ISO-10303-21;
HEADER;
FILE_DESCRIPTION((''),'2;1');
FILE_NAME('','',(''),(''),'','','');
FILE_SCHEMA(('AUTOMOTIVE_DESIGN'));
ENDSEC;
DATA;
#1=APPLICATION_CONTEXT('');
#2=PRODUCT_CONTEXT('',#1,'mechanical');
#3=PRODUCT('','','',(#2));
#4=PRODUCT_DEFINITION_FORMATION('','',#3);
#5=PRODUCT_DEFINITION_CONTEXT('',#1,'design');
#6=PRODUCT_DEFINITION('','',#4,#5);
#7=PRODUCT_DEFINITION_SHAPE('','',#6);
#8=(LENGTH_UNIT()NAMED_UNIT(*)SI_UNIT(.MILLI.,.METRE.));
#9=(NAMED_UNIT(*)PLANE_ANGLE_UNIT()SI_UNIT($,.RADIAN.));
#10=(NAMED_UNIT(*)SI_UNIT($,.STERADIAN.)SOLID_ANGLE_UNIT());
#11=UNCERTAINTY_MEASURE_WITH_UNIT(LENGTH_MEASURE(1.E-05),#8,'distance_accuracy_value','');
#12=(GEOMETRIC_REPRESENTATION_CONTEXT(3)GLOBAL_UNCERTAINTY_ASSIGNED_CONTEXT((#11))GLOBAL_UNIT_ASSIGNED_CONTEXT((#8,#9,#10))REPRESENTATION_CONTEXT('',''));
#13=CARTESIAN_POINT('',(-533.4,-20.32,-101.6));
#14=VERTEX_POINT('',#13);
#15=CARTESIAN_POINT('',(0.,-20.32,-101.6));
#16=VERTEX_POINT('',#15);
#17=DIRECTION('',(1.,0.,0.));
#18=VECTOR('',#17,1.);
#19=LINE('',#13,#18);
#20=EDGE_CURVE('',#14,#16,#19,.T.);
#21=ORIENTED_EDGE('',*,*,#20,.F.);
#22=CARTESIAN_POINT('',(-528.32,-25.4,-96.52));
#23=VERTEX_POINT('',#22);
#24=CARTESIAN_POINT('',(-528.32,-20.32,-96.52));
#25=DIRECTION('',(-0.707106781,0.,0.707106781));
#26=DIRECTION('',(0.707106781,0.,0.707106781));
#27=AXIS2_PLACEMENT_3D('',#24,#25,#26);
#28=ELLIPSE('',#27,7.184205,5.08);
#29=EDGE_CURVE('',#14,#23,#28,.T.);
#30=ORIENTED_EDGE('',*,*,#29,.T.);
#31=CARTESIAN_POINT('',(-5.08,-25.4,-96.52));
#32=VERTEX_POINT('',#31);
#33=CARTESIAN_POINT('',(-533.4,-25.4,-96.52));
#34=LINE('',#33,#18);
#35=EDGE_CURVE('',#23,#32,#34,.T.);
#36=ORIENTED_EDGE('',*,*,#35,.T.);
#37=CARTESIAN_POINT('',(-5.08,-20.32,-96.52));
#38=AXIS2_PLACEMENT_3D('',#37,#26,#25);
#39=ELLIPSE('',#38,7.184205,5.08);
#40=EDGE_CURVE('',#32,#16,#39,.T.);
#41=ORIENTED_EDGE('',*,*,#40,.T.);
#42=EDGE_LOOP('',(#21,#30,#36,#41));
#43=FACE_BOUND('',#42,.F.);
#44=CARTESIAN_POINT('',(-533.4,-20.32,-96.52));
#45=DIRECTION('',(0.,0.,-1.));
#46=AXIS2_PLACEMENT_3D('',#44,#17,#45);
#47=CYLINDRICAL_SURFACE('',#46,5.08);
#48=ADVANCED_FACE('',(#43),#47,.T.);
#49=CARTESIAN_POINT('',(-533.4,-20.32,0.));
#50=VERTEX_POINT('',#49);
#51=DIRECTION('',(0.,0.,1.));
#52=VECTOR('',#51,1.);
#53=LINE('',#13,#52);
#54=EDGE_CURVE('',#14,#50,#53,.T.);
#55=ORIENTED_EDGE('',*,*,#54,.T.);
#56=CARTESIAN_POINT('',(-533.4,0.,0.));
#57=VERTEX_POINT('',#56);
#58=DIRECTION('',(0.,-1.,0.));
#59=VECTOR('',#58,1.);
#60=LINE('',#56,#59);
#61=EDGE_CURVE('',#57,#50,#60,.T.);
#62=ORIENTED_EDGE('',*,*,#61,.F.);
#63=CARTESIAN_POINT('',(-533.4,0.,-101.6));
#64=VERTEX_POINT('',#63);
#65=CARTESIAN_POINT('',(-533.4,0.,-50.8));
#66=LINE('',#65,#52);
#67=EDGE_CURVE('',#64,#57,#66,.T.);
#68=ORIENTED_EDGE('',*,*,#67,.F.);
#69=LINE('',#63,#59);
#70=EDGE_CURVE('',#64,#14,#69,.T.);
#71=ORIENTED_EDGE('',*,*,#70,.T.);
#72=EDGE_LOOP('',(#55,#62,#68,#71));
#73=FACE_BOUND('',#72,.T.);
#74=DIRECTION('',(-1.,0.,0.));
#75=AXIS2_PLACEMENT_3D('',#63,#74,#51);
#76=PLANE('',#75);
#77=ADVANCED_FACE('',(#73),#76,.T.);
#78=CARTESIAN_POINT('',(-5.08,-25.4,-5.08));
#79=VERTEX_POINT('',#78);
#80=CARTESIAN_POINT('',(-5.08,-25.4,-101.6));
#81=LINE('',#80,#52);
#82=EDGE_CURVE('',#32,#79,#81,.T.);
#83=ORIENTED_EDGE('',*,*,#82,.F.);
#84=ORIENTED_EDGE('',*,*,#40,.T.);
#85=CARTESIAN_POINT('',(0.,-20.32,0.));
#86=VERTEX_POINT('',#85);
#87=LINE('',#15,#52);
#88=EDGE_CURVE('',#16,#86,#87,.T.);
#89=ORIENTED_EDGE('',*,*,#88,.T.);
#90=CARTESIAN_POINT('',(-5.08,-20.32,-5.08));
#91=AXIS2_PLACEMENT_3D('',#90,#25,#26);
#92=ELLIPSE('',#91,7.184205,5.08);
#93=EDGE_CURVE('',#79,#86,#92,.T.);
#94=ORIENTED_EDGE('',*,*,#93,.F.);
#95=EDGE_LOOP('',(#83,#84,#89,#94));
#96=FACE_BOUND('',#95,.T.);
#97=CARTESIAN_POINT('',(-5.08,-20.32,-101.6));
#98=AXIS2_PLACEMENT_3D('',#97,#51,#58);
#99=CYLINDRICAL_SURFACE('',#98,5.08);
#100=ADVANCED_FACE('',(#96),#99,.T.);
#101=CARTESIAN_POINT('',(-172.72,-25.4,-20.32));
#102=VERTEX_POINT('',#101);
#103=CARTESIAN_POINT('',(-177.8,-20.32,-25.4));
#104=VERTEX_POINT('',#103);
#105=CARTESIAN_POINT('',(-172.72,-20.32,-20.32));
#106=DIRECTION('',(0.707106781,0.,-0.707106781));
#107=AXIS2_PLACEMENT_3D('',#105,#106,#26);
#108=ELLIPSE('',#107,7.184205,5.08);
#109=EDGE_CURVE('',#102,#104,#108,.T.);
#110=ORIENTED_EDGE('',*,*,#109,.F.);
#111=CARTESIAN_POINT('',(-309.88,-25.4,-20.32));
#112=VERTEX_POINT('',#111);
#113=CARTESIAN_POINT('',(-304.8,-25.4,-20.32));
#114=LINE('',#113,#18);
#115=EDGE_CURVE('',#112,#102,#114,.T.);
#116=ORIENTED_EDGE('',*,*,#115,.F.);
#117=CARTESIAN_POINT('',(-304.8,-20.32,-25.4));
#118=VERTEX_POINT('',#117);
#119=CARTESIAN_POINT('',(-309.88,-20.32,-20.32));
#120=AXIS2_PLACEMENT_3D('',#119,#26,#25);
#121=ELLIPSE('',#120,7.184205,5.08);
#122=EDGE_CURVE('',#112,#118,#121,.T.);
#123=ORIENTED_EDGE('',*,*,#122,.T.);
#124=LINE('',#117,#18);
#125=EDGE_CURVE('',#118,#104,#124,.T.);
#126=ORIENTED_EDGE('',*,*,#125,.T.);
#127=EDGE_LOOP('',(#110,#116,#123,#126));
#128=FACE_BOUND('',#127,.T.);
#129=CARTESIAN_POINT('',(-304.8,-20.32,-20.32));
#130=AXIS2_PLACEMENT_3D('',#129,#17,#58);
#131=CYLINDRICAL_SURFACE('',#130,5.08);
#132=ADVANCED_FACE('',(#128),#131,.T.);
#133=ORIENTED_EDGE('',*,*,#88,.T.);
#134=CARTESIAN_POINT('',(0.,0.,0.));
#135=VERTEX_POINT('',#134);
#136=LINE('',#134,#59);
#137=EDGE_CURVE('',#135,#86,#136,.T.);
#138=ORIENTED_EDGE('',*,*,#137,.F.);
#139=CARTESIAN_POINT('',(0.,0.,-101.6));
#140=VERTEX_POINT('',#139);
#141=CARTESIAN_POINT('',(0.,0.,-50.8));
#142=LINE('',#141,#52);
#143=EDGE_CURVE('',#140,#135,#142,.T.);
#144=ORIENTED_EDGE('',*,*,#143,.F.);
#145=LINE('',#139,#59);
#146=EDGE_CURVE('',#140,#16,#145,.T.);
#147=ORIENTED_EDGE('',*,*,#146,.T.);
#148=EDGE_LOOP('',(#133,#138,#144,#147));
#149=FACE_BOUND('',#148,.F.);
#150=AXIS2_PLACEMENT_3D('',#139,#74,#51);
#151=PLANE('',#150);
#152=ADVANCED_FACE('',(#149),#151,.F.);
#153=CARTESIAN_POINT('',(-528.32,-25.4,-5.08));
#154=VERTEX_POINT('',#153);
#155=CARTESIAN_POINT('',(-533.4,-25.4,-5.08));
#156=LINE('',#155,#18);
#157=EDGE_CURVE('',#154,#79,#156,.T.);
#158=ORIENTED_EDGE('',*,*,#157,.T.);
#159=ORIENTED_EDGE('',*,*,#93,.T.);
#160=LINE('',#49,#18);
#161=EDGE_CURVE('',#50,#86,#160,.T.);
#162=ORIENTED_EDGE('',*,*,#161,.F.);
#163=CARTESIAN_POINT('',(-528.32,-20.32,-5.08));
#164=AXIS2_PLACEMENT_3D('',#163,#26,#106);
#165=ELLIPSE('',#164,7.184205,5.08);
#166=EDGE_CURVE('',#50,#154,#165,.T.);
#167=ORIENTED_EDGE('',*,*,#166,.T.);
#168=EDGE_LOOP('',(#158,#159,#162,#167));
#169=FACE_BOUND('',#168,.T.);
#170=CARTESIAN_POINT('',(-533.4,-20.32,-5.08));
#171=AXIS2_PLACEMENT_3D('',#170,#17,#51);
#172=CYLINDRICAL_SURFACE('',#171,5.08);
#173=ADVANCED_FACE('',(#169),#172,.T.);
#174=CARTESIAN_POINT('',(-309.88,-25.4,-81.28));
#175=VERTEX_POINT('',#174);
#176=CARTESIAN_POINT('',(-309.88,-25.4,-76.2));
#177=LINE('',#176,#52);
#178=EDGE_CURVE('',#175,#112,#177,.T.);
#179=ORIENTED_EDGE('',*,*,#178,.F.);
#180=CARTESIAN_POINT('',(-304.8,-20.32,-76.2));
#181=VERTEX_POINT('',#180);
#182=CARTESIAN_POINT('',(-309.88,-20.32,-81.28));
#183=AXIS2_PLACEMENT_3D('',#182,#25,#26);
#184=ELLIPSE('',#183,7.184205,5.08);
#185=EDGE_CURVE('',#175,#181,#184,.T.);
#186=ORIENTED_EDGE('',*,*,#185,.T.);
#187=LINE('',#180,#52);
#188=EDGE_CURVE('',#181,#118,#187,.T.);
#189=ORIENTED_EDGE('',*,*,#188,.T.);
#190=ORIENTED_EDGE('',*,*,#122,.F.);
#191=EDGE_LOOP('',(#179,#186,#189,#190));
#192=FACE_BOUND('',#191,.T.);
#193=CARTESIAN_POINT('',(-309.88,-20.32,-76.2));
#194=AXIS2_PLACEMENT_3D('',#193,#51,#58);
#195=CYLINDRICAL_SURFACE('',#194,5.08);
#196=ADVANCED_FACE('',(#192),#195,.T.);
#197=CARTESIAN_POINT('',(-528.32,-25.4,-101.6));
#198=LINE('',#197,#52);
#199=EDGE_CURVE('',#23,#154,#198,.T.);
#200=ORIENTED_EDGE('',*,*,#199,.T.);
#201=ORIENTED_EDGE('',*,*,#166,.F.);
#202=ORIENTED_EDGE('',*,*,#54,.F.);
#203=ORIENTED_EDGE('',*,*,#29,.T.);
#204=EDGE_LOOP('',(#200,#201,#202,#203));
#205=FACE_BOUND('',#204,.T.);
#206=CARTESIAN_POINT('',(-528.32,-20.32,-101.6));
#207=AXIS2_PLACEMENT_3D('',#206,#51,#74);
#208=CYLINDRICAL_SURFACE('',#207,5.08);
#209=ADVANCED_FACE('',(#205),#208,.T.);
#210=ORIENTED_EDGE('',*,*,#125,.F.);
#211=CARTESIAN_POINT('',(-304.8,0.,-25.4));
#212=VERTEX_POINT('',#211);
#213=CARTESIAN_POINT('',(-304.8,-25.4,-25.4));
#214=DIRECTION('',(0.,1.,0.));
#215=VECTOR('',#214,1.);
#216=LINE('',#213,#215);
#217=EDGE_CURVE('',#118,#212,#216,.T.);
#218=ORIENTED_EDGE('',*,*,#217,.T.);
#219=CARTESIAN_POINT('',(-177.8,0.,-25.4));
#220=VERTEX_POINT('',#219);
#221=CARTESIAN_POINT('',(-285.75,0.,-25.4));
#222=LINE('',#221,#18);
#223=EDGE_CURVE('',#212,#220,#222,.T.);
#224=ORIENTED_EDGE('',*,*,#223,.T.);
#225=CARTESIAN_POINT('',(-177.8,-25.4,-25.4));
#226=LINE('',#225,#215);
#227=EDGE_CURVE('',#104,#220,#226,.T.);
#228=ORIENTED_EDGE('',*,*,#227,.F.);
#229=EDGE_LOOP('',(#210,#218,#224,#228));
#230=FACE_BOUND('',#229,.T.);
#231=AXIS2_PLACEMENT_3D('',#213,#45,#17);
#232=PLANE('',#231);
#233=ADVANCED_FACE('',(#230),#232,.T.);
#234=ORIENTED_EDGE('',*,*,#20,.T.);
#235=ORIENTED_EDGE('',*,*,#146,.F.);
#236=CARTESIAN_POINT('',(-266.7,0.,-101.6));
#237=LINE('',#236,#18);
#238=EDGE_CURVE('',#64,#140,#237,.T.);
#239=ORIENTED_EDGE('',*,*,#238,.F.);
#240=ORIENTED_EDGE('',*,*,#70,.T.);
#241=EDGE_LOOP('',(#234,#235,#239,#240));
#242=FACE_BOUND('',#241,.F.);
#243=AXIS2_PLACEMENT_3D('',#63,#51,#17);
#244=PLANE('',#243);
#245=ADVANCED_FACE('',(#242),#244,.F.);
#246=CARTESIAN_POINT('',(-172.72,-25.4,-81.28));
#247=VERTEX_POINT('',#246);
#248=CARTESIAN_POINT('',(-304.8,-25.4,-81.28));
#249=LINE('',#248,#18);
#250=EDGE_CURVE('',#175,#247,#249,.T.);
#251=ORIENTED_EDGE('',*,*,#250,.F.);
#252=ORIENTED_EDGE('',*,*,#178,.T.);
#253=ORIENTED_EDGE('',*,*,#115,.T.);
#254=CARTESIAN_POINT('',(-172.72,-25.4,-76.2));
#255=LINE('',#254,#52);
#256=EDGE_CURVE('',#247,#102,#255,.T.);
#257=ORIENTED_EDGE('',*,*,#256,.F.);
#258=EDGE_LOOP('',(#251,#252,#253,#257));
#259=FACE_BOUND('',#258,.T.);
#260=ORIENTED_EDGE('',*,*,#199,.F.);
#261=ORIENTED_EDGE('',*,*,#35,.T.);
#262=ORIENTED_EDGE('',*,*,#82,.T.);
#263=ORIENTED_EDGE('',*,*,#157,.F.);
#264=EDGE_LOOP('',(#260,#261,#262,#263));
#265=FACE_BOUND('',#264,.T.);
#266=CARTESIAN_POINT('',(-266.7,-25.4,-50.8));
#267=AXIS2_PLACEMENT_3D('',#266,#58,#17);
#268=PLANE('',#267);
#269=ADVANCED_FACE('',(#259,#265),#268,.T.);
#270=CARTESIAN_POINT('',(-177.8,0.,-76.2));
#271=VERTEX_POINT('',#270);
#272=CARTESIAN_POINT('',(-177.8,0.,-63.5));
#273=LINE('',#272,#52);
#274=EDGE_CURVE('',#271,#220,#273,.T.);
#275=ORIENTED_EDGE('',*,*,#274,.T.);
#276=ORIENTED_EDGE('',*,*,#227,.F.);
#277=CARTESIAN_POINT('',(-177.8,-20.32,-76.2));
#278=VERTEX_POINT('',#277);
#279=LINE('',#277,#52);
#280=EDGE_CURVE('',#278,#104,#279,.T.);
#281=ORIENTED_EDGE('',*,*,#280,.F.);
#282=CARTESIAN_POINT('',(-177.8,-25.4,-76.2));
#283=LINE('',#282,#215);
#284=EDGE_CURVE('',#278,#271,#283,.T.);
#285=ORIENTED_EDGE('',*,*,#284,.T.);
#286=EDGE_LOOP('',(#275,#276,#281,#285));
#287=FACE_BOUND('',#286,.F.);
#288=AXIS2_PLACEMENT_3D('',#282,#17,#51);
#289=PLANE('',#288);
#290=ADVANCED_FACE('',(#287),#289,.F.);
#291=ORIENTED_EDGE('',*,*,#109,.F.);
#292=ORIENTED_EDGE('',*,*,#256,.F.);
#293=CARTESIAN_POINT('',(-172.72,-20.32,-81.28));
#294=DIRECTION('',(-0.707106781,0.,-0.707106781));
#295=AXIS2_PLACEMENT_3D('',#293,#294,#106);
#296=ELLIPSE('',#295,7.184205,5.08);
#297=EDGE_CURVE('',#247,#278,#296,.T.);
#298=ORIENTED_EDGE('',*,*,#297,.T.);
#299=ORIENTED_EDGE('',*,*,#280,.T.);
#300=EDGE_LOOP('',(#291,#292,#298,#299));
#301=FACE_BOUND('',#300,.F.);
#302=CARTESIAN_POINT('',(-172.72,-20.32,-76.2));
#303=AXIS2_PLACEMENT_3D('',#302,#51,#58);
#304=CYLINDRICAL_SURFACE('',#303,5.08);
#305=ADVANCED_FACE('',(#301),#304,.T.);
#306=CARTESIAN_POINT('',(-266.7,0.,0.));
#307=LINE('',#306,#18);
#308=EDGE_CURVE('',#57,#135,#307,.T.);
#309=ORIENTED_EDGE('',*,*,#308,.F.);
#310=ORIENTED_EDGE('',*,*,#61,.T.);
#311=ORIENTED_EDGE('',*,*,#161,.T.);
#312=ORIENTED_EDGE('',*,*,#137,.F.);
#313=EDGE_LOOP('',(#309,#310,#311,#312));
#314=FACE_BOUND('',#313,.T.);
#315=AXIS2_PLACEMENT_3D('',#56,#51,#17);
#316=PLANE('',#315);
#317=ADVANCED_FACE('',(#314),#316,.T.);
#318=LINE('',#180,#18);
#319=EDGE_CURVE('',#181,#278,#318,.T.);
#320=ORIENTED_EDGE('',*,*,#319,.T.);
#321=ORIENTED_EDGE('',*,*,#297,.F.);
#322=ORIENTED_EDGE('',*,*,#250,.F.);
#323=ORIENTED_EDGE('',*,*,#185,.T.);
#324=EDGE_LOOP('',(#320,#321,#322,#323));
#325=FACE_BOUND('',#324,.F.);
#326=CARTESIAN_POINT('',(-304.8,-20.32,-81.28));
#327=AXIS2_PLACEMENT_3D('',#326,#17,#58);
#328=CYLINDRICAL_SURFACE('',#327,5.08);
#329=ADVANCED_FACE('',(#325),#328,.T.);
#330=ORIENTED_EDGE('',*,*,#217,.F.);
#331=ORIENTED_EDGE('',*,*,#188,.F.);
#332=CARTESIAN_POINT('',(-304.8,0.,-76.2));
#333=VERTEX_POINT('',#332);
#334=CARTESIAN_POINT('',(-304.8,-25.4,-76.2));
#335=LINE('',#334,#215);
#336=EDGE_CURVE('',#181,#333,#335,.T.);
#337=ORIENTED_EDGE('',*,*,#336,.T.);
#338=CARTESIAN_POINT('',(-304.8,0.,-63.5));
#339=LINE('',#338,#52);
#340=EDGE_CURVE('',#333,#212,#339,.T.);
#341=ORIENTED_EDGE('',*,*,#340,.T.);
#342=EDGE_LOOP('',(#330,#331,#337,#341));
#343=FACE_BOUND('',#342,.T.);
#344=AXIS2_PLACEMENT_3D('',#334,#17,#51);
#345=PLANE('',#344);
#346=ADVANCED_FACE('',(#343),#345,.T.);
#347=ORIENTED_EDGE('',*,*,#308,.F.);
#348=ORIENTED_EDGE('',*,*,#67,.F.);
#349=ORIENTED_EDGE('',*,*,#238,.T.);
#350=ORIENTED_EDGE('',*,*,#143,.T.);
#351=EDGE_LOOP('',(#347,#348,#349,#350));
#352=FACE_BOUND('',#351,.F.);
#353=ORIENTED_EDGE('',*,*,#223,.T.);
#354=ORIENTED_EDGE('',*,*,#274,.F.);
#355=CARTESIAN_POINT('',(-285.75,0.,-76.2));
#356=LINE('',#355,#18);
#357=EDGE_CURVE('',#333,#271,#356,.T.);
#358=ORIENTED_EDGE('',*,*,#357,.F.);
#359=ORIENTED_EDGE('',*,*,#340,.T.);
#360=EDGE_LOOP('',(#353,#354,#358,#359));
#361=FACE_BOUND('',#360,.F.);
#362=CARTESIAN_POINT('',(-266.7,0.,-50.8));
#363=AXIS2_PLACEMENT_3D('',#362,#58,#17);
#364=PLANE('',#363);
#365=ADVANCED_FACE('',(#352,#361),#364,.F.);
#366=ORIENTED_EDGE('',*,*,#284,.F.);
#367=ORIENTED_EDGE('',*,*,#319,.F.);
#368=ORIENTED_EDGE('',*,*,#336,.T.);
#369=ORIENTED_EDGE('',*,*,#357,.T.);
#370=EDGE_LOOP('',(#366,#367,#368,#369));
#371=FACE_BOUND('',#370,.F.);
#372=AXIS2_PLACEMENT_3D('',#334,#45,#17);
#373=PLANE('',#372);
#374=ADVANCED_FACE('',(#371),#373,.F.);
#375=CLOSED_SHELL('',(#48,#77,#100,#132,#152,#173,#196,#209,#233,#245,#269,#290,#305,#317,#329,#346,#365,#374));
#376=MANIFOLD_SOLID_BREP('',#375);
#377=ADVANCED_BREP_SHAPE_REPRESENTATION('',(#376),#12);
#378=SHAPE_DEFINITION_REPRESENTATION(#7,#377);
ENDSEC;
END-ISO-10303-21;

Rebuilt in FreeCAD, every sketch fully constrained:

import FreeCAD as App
import Part
import Sketcher
Q = App.Units.Quantity


def edges_at(feature, points):
    """Names of the edges that pass closest to the given points."""
    edges = feature.Shape.Edges
    near = lambda p: min(range(len(edges)), key=lambda i: edges[i].distToShape(Part.Vertex(*p))[0])
    return sorted({f"Edge{near(p) + 1}" for p in points})

doc = App.newDocument("Part")
params = doc.addObject("Spreadsheet::Sheet", "Params")
for row, (alias, value) in enumerate([
    ("sketch1_width", "21 in"),
    ("sketch1_height", "4 in"),
    ("pad1_length", "1 in"),
    ("sketch2_width", "5 in"),
    ("sketch2_height", "2 in"),
    ("pocket1_length", "2 in"),
    ("fillet_radius", "0.2 in"),
], start=1):
    params.set(f"A{row}", alias)
    params.set(f"B{row}", "=" + value)
    params.setAlias(f"B{row}", alias)

body = doc.addObject("PartDesign::Body", "Body")

sketch1 = body.newObject("Sketcher::SketchObject", "Sketch")
sketch1.AttachmentSupport = (doc.getObject("XZ_Plane"), [""])
sketch1.MapMode = "FlatFace"
sketch1.addGeometry([
    Part.LineSegment(App.Vector(-533, 0, 0), App.Vector(-533, -102, 0)),
    Part.LineSegment(App.Vector(-533, -102, 0), App.Vector(0, -102, 0)),
    Part.LineSegment(App.Vector(0, -102, 0), App.Vector(0, 0, 0)),
    Part.LineSegment(App.Vector(0, 0, 0), App.Vector(-533, 0, 0)),
], False)
sketch1.addConstraint([
    Sketcher.Constraint("Coincident", 0, 2, 1, 1),
    Sketcher.Constraint("Coincident", 1, 2, 2, 1),
    Sketcher.Constraint("Coincident", 2, 2, 3, 1),
    Sketcher.Constraint("Coincident", 3, 2, 0, 1),
    Sketcher.Constraint("Vertical", 0),
    Sketcher.Constraint("Horizontal", 1),
    Sketcher.Constraint("Vertical", 2),
    Sketcher.Constraint("Horizontal", 3),
    Sketcher.Constraint("Coincident", 2, 2, -1, 1),
    Sketcher.Constraint("DistanceX", 1, 1, 1, 2, Q("21 in")),
    Sketcher.Constraint("DistanceY", 0, 2, 0, 1, Q("4 in")),
])
sketch1.setExpression("Constraints[9]", "Params.sketch1_width")
sketch1.setExpression("Constraints[10]", "Params.sketch1_height")
pad1 = body.newObject("PartDesign::Pad", "Pad")
pad1.Profile = sketch1
pad1.setExpression("Length", "Params.pad1_length")

sketch2 = body.newObject("Sketcher::SketchObject", "Sketch001")
sketch2.AttachmentSupport = (doc.getObject("XZ_Plane"), [""])
sketch2.MapMode = "FlatFace"
sketch2.AttachmentOffset = App.Placement(App.Vector(0, 0, 1 * 25.4), App.Rotation())
sketch2.addGeometry([
    Part.LineSegment(App.Vector(-305, -25, 0), App.Vector(-305, -76, 0)),
    Part.LineSegment(App.Vector(-305, -76, 0), App.Vector(-178, -76, 0)),
    Part.LineSegment(App.Vector(-178, -76, 0), App.Vector(-178, -25, 0)),
    Part.LineSegment(App.Vector(-178, -25, 0), App.Vector(-305, -25, 0)),
], False)
sketch2.addConstraint([
    Sketcher.Constraint("Coincident", 0, 2, 1, 1),
    Sketcher.Constraint("Coincident", 1, 2, 2, 1),
    Sketcher.Constraint("Coincident", 2, 2, 3, 1),
    Sketcher.Constraint("Coincident", 3, 2, 0, 1),
    Sketcher.Constraint("Vertical", 0),
    Sketcher.Constraint("Horizontal", 1),
    Sketcher.Constraint("Vertical", 2),
    Sketcher.Constraint("Horizontal", 3),
    Sketcher.Constraint("DistanceX", 1, 1, 1, 2, Q("5 in")),
    Sketcher.Constraint("DistanceY", 0, 2, 0, 1, Q("2 in")),
    Sketcher.Constraint("DistanceX", 0, 2, -1, 1, Q("12 in")),
    Sketcher.Constraint("DistanceY", 0, 2, -1, 1, Q("3 in")),
])
sketch2.setExpression("Constraints[8]", "Params.sketch2_width")
sketch2.setExpression("Constraints[9]", "Params.sketch2_height")
pocket1 = body.newObject("PartDesign::Pocket", "Pocket")
pocket1.Profile = sketch2
pocket1.setExpression("Length", "Params.pocket1_length")
doc.recompute()

fillet = body.newObject("PartDesign::Fillet", "Fillet")
fillet.Base = (pocket1, edges_at(pocket1, [
    (0, -25.4, -50.8),
    (-266.7, -25.4, -101.6),
    (-266.7, -25.4, 0),
    (-533.4, -25.4, -50.8),
    (-304.8, -25.4, -50.8),
    (-241.3, -25.4, -76.2),
    (-177.8, -25.4, -50.8),
    (-241.3, -25.4, -25.4),
]))
fillet.setExpression("Radius", "Params.fillet_radius")

doc.recompute()
